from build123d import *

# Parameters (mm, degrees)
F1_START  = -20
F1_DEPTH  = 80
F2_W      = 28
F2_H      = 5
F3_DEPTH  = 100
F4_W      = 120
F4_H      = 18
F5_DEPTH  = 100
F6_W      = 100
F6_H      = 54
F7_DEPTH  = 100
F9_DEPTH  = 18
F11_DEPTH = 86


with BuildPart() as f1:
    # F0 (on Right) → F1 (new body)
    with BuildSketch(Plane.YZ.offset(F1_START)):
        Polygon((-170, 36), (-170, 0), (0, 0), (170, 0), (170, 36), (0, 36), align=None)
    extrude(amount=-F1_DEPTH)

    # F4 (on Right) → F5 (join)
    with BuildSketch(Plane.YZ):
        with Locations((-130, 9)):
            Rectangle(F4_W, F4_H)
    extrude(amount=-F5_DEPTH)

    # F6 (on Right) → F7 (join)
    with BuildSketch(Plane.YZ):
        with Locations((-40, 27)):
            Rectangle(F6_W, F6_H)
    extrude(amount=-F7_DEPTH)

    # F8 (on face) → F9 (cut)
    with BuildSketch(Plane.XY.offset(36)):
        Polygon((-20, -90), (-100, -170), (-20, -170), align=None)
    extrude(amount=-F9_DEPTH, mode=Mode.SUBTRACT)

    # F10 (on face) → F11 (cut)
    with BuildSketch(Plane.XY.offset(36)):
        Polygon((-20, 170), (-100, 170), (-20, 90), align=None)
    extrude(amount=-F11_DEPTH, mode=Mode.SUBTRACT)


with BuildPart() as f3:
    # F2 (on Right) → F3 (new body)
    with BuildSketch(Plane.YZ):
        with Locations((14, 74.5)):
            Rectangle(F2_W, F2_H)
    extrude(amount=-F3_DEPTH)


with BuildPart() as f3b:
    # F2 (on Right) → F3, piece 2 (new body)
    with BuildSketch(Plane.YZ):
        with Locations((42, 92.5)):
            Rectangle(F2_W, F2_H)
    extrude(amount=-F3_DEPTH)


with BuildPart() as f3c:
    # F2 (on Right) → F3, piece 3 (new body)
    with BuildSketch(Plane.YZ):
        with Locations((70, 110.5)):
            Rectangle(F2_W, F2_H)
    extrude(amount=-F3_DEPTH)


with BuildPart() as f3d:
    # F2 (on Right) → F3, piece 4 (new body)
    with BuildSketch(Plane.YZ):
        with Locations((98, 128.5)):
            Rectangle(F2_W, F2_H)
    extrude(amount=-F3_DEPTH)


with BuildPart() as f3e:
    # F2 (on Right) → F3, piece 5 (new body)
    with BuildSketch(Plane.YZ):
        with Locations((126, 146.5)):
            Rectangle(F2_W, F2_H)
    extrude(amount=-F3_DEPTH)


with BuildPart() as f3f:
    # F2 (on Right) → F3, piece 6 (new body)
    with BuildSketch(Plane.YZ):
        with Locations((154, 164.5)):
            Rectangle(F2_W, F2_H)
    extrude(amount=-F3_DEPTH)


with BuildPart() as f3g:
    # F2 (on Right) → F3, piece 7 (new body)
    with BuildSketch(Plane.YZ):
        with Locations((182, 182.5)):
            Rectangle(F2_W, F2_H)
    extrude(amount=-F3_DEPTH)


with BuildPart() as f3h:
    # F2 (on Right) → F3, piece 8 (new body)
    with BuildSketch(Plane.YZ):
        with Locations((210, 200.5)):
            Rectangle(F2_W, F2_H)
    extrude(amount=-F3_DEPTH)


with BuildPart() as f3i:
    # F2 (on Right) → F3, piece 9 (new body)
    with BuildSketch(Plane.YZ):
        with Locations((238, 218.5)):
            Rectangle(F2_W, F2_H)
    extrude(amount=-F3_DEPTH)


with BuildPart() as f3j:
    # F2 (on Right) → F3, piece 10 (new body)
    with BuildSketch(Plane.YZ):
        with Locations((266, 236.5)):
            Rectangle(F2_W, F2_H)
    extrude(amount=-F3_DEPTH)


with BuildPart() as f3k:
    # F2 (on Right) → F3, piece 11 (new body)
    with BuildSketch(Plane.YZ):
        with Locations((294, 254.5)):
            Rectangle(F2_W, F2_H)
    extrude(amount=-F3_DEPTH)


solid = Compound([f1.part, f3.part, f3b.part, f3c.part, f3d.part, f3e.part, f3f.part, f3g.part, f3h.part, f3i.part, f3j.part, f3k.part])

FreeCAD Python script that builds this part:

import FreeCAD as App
import Part
import Sketcher

V = App.Vector
Q = App.Units.Quantity


def add_polygon(sketch, points):
    """Adds a closed chain of lines whose ends are joined by coincident constraints."""
    first, n = sketch.GeometryCount, len(points)
    for a, b in zip(points, points[1:] + points[:1]):
        sketch.addGeometry(Part.LineSegment(App.Vector(*a, 0), App.Vector(*b, 0)), False)
    for i in range(n):
        sketch.addConstraint(Sketcher.Constraint("Coincident", first + i, 2, first + (i + 1) % n, 1))

doc = App.newDocument("Part")
params = doc.addObject("Spreadsheet::Sheet", "Params")
for row, (alias, value) in enumerate([
    ("sketch1_width", "340 mm"),
    ("sketch1_height", "36 mm"),
    ("pad1_length", "80 mm"),
    ("sketch2_width", "120 mm"),
    ("sketch2_height", "18 mm"),
    ("pad2_length", "100 mm"),
    ("sketch3_width", "100 mm"),
    ("sketch3_height", "54 mm"),
    ("pad3_length", "100 mm"),
    ("sketch4_width", "80 mm"),
    ("pocket1_length", "18 mm"),
    ("sketch5_width", "80 mm"),
    ("pocket2_length", "86 mm"),
    ("sketch6_width", "28 mm"),
    ("sketch6_height", "5 mm"),
    ("pad4_length", "100 mm"),
    ("sketch7_width", "28 mm"),
    ("sketch7_height", "5 mm"),
    ("pad5_length", "100 mm"),
    ("sketch8_width", "28 mm"),
    ("sketch8_height", "5 mm"),
    ("pad6_length", "100 mm"),
    ("sketch9_width", "28 mm"),
    ("sketch9_height", "5 mm"),
    ("pad7_length", "100 mm"),
    ("sketch10_width", "28 mm"),
    ("sketch10_height", "5 mm"),
    ("pad8_length", "100 mm"),
    ("sketch11_width", "28 mm"),
    ("sketch11_height", "5 mm"),
    ("pad9_length", "100 mm"),
    ("sketch12_width", "28 mm"),
    ("sketch12_height", "5 mm"),
    ("pad10_length", "100 mm"),
    ("sketch13_width", "28 mm"),
    ("sketch13_height", "5 mm"),
    ("pad11_length", "100 mm"),
    ("sketch14_width", "28 mm"),
    ("sketch14_height", "5 mm"),
    ("pad12_length", "100 mm"),
    ("sketch15_width", "28 mm"),
    ("sketch15_height", "5 mm"),
    ("pad13_length", "100 mm"),
    ("sketch16_width", "28 mm"),
    ("sketch16_height", "5 mm"),
    ("pad14_length", "100 mm"),
], start=1):
    params.set(f"A{row}", alias)
    params.set(f"B{row}", "=" + value)
    params.setAlias(f"B{row}", alias)

body = doc.addObject("PartDesign::Body", "Body")

# Sketch on YZ plane
sketch1 = body.newObject("Sketcher::SketchObject", "Sketch")
sketch1.AttachmentSupport = (doc.getObject("YZ_Plane"), [""])
sketch1.MapMode = "FlatFace"
sketch1.AttachmentOffset = App.Placement(V(0, 0, -20), App.Rotation())
add_polygon(sketch1, [(-170, 36), (-170, 0), (170, 0), (170, 36)])  # lines 0-3
sketch1.addConstraint([
    Sketcher.Constraint("Vertical", 0),
    Sketcher.Constraint("Horizontal", 1),
    Sketcher.Constraint("Vertical", 2),
    Sketcher.Constraint("Horizontal", 3),
    Sketcher.Constraint("Symmetric", 0, 2, 1, 2, -1, 1),
    Sketcher.Constraint("DistanceX", 1, 1, 1, 2, Q("340 mm")),
    Sketcher.Constraint("DistanceY", 0, 2, 0, 1, Q("36 mm")),
])
sketch1.setExpression("Constraints[9]", "Params.sketch1_width")
sketch1.setExpression("Constraints[10]", "Params.sketch1_height")
pad1 = body.newObject("PartDesign::Pad", "Pad")
pad1.Profile = sketch1
pad1.setExpression("Length", "Params.pad1_length")
pad1.Reversed = True

# Sketch on YZ plane
sketch2 = body.newObject("Sketcher::SketchObject", "Sketch001")
sketch2.AttachmentSupport = (doc.getObject("YZ_Plane"), [""])
sketch2.MapMode = "FlatFace"
add_polygon(sketch2, [(-190, 18), (-190, 0), (-70, 0), (-70, 18)])  # lines 0-3
sketch2.addConstraint([
    Sketcher.Constraint("Vertical", 0),
    Sketcher.Constraint("Horizontal", 1),
    Sketcher.Constraint("Vertical", 2),
    Sketcher.Constraint("Horizontal", 3),
    Sketcher.Constraint("PointOnObject", 0, 2, -1),
    Sketcher.Constraint("DistanceX", 1, 1, 1, 2, Q("120 mm")),
    Sketcher.Constraint("DistanceY", 0, 2, 0, 1, Q("18 mm")),
    Sketcher.Constraint("DistanceX", 0, 2, -1, 1, Q("190 mm")),
])
sketch2.setExpression("Constraints[9]", "Params.sketch2_width")
sketch2.setExpression("Constraints[10]", "Params.sketch2_height")
pad2 = body.newObject("PartDesign::Pad", "Pad001")
pad2.Profile = sketch2
pad2.setExpression("Length", "Params.pad2_length")
pad2.Reversed = True

# Sketch on YZ plane
sketch3 = body.newObject("Sketcher::SketchObject", "Sketch002")
sketch3.AttachmentSupport = (doc.getObject("YZ_Plane"), [""])
sketch3.MapMode = "FlatFace"
add_polygon(sketch3, [(-90, 54), (-90, 0), (10, 0), (10, 54)])  # lines 0-3
sketch3.addConstraint([
    Sketcher.Constraint("Vertical", 0),
    Sketcher.Constraint("Horizontal", 1),
    Sketcher.Constraint("Vertical", 2),
    Sketcher.Constraint("Horizontal", 3),
    Sketcher.Constraint("PointOnObject", 0, 2, -1),
    Sketcher.Constraint("DistanceX", 1, 1, 1, 2, Q("100 mm")),
    Sketcher.Constraint("DistanceY", 0, 2, 0, 1, Q("54 mm")),
    Sketcher.Constraint("DistanceX", 0, 2, -1, 1, Q("90 mm")),
])
sketch3.setExpression("Constraints[9]", "Params.sketch3_width")
sketch3.setExpression("Constraints[10]", "Params.sketch3_height")
pad3 = body.newObject("PartDesign::Pad", "Pad002")
pad3.Profile = sketch3
pad3.setExpression("Length", "Params.pad3_length")
pad3.Reversed = True

# Sketch on XY plane
sketch4 = body.newObject("Sketcher::SketchObject", "Sketch003")
sketch4.AttachmentSupport = (doc.getObject("XY_Plane"), [""])
sketch4.MapMode = "FlatFace"
sketch4.AttachmentOffset = App.Placement(V(0, 0, 36), App.Rotation())
add_polygon(sketch4, [(-20, -90), (-100, -170), (-20, -170)])  # lines 0-2
sketch4.addConstraint([
    Sketcher.Constraint("Horizontal", 1),
    Sketcher.Constraint("Vertical", 2),
    Sketcher.Constraint("Equal", 1, 2),
    Sketcher.Constraint("DistanceX", 1, 1, 1, 2, Q("80 mm")),
    Sketcher.Constraint("DistanceX", 0, 2, -1, 1, Q("100 mm")),
    Sketcher.Constraint("DistanceY", 0, 2, -1, 1, Q("170 mm")),
])
sketch4.setExpression("Constraints[6]", "Params.sketch4_width")
pocket1 = body.newObject("PartDesign::Pocket", "Pocket")
pocket1.Profile = sketch4
pocket1.setExpression("Length", "Params.pocket1_length")

# Sketch on XY plane
sketch5 = body.newObject("Sketcher::SketchObject", "Sketch004")
sketch5.AttachmentSupport = (doc.getObject("XY_Plane"), [""])
sketch5.MapMode = "FlatFace"
sketch5.AttachmentOffset = App.Placement(V(0, 0, 36), App.Rotation())
add_polygon(sketch5, [(-20, 170), (-100, 170), (-20, 90)])  # lines 0-2
sketch5.addConstraint([
    Sketcher.Constraint("Horizontal", 0),
    Sketcher.Constraint("Vertical", 2),
    Sketcher.Constraint("Equal", 0, 2),
    Sketcher.Constraint("DistanceX", 0, 2, 0, 1, Q("80 mm")),
    Sketcher.Constraint("DistanceX", 0, 2, -1, 1, Q("100 mm")),
    Sketcher.Constraint("DistanceY", -1, 1, 0, 2, Q("170 mm")),
])
sketch5.setExpression("Constraints[6]", "Params.sketch5_width")
pocket2 = body.newObject("PartDesign::Pocket", "Pocket001")
pocket2.Profile = sketch5
pocket2.setExpression("Length", "Params.pocket2_length")
body2 = doc.addObject("PartDesign::Body", "Body001")

# Sketch on YZ plane
sketch6 = body2.newObject("Sketcher::SketchObject", "Sketch005")
sketch6.AttachmentSupport = (doc.getObject("YZ_Plane001"), [""])
sketch6.MapMode = "FlatFace"
add_polygon(sketch6, [(0, 77), (0, 72), (28, 72), (28, 77)])  # lines 0-3
sketch6.addConstraint([
    Sketcher.Constraint("Vertical", 0),
    Sketcher.Constraint("Horizontal", 1),
    Sketcher.Constraint("Vertical", 2),
    Sketcher.Constraint("Horizontal", 3),
    Sketcher.Constraint("PointOnObject", 0, 2, -2),
    Sketcher.Constraint("DistanceX", 1, 1, 1, 2, Q("28 mm")),
    Sketcher.Constraint("DistanceY", 0, 2, 0, 1, Q("5 mm")),
    Sketcher.Constraint("DistanceY", -1, 1, 0, 2, Q("72 mm")),
])
sketch6.setExpression("Constraints[9]", "Params.sketch6_width")
sketch6.setExpression("Constraints[10]", "Params.sketch6_height")
pad4 = body2.newObject("PartDesign::Pad", "Pad003")
pad4.Profile = sketch6
pad4.setExpression("Length", "Params.pad4_length")
pad4.Reversed = True
body3 = doc.addObject("PartDesign::Body", "Body002")

# Sketch on YZ plane
sketch7 = body3.newObject("Sketcher::SketchObject", "Sketch006")
sketch7.AttachmentSupport = (doc.getObject("YZ_Plane002"), [""])
sketch7.MapMode = "FlatFace"
add_polygon(sketch7, [(28, 95), (28, 90), (56, 90), (56, 95)])  # lines 0-3
sketch7.addConstraint([
    Sketcher.Constraint("Vertical", 0),
    Sketcher.Constraint("Horizontal", 1),
    Sketcher.Constraint("Vertical", 2),
    Sketcher.Constraint("Horizontal", 3),
    Sketcher.Constraint("DistanceX", 1, 1, 1, 2, Q("28 mm")),
    Sketcher.Constraint("DistanceY", 0, 2, 0, 1, Q("5 mm")),
    Sketcher.Constraint("DistanceX", -1, 1, 0, 2, Q("28 mm")),
    Sketcher.Constraint("DistanceY", -1, 1, 0, 2, Q("90 mm")),
])
sketch7.setExpression("Constraints[8]", "Params.sketch7_width")
sketch7.setExpression("Constraints[9]", "Params.sketch7_height")
pad5 = body3.newObject("PartDesign::Pad", "Pad004")
pad5.Profile = sketch7
pad5.setExpression("Length", "Params.pad5_length")
pad5.Reversed = True
body4 = doc.addObject("PartDesign::Body", "Body003")

# Sketch on YZ plane
sketch8 = body4.newObject("Sketcher::SketchObject", "Sketch007")
sketch8.AttachmentSupport = (doc.getObject("YZ_Plane003"), [""])
sketch8.MapMode = "FlatFace"
add_polygon(sketch8, [(56, 113), (56, 108), (84, 108), (84, 113)])  # lines 0-3
sketch8.addConstraint([
    Sketcher.Constraint("Vertical", 0),
    Sketcher.Constraint("Horizontal", 1),
    Sketcher.Constraint("Vertical", 2),
    Sketcher.Constraint("Horizontal", 3),
    Sketcher.Constraint("DistanceX", 1, 1, 1, 2, Q("28 mm")),
    Sketcher.Constraint("DistanceY", 0, 2, 0, 1, Q("5 mm")),
    Sketcher.Constraint("DistanceX", -1, 1, 0, 2, Q("56 mm")),
    Sketcher.Constraint("DistanceY", -1, 1, 0, 2, Q("108 mm")),
])
sketch8.setExpression("Constraints[8]", "Params.sketch8_width")
sketch8.setExpression("Constraints[9]", "Params.sketch8_height")
pad6 = body4.newObject("PartDesign::Pad", "Pad005")
pad6.Profile = sketch8
pad6.setExpression("Length", "Params.pad6_length")
pad6.Reversed = True
body5 = doc.addObject("PartDesign::Body", "Body004")

# Sketch on YZ plane
sketch9 = body5.newObject("Sketcher::SketchObject", "Sketch008")
sketch9.AttachmentSupport = (doc.getObject("YZ_Plane004"), [""])
sketch9.MapMode = "FlatFace"
add_polygon(sketch9, [(84, 131), (84, 126), (112, 126), (112, 131)])  # lines 0-3
sketch9.addConstraint([
    Sketcher.Constraint("Vertical", 0),
    Sketcher.Constraint("Horizontal", 1),
    Sketcher.Constraint("Vertical", 2),
    Sketcher.Constraint("Horizontal", 3),
    Sketcher.Constraint("DistanceX", 1, 1, 1, 2, Q("28 mm")),
    Sketcher.Constraint("DistanceY", 0, 2, 0, 1, Q("5 mm")),
    Sketcher.Constraint("DistanceX", -1, 1, 0, 2, Q("84 mm")),
    Sketcher.Constraint("DistanceY", -1, 1, 0, 2, Q("126 mm")),
])
sketch9.setExpression("Constraints[8]", "Params.sketch9_width")
sketch9.setExpression("Constraints[9]", "Params.sketch9_height")
pad7 = body5.newObject("PartDesign::Pad", "Pad006")
pad7.Profile = sketch9
pad7.setExpression("Length", "Params.pad7_length")
pad7.Reversed = True
body6 = doc.addObject("PartDesign::Body", "Body005")

# Sketch on YZ plane
sketch10 = body6.newObject("Sketcher::SketchObject", "Sketch009")
sketch10.AttachmentSupport = (doc.getObject("YZ_Plane005"), [""])
sketch10.MapMode = "FlatFace"
add_polygon(sketch10, [(112, 149), (112, 144), (140, 144), (140, 149)])  # lines 0-3
sketch10.addConstraint([
    Sketcher.Constraint("Vertical", 0),
    Sketcher.Constraint("Horizontal", 1),
    Sketcher.Constraint("Vertical", 2),
    Sketcher.Constraint("Horizontal", 3),
    Sketcher.Constraint("DistanceX", 1, 1, 1, 2, Q("28 mm")),
    Sketcher.Constraint("DistanceY", 0, 2, 0, 1, Q("5 mm")),
    Sketcher.Constraint("DistanceX", -1, 1, 0, 2, Q("112 mm")),
    Sketcher.Constraint("DistanceY", -1, 1, 0, 2, Q("144 mm")),
])
sketch10.setExpression("Constraints[8]", "Params.sketch10_width")
sketch10.setExpression("Constraints[9]", "Params.sketch10_height")
pad8 = body6.newObject("PartDesign::Pad", "Pad007")
pad8.Profile = sketch10
pad8.setExpression("Length", "Params.pad8_length")
pad8.Reversed = True
body7 = doc.addObject("PartDesign::Body", "Body006")

# Sketch on YZ plane
sketch11 = body7.newObject("Sketcher::SketchObject", "Sketch010")
sketch11.AttachmentSupport = (doc.getObject("YZ_Plane006"), [""])
sketch11.MapMode = "FlatFace"
add_polygon(sketch11, [(140, 167), (140, 162), (168, 162), (168, 167)])  # lines 0-3
sketch11.addConstraint([
    Sketcher.Constraint("Vertical", 0),
    Sketcher.Constraint("Horizontal", 1),
    Sketcher.Constraint("Vertical", 2),
    Sketcher.Constraint("Horizontal", 3),
    Sketcher.Constraint("DistanceX", 1, 1, 1, 2, Q("28 mm")),
    Sketcher.Constraint("DistanceY", 0, 2, 0, 1, Q("5 mm")),
    Sketcher.Constraint("DistanceX", -1, 1, 0, 2, Q("140 mm")),
    Sketcher.Constraint("DistanceY", -1, 1, 0, 2, Q("162 mm")),
])
sketch11.setExpression("Constraints[8]", "Params.sketch11_width")
sketch11.setExpression("Constraints[9]", "Params.sketch11_height")
pad9 = body7.newObject("PartDesign::Pad", "Pad008")
pad9.Profile = sketch11
pad9.setExpression("Length", "Params.pad9_length")
pad9.Reversed = True
body8 = doc.addObject("PartDesign::Body", "Body007")

# Sketch on YZ plane
sketch12 = body8.newObject("Sketcher::SketchObject", "Sketch011")
sketch12.AttachmentSupport = (doc.getObject("YZ_Plane007"), [""])
sketch12.MapMode = "FlatFace"
add_polygon(sketch12, [(168, 185), (168, 180), (196, 180), (196, 185)])  # lines 0-3
sketch12.addConstraint([
    Sketcher.Constraint("Vertical", 0),
    Sketcher.Constraint("Horizontal", 1),
    Sketcher.Constraint("Vertical", 2),
    Sketcher.Constraint("Horizontal", 3),
    Sketcher.Constraint("DistanceX", 1, 1, 1, 2, Q("28 mm")),
    Sketcher.Constraint("DistanceY", 0, 2, 0, 1, Q("5 mm")),
    Sketcher.Constraint("DistanceX", -1, 1, 0, 2, Q("168 mm")),
    Sketcher.Constraint("DistanceY", -1, 1, 0, 2, Q("180 mm")),
])
sketch12.setExpression("Constraints[8]", "Params.sketch12_width")
sketch12.setExpression("Constraints[9]", "Params.sketch12_height")
pad10 = body8.newObject("PartDesign::Pad", "Pad009")
pad10.Profile = sketch12
pad10.setExpression("Length", "Params.pad10_length")
pad10.Reversed = True
body9 = doc.addObject("PartDesign::Body", "Body008")

# Sketch on YZ plane
sketch13 = body9.newObject("Sketcher::SketchObject", "Sketch012")
sketch13.AttachmentSupport = (doc.getObject("YZ_Plane008"), [""])
sketch13.MapMode = "FlatFace"
add_polygon(sketch13, [(196, 203), (196, 198), (224, 198), (224, 203)])  # lines 0-3
sketch13.addConstraint([
    Sketcher.Constraint("Vertical", 0),
    Sketcher.Constraint("Horizontal", 1),
    Sketcher.Constraint("Vertical", 2),
    Sketcher.Constraint("Horizontal", 3),
    Sketcher.Constraint("DistanceX", 1, 1, 1, 2, Q("28 mm")),
    Sketcher.Constraint("DistanceY", 0, 2, 0, 1, Q("5 mm")),
    Sketcher.Constraint("DistanceX", -1, 1, 0, 2, Q("196 mm")),
    Sketcher.Constraint("DistanceY", -1, 1, 0, 2, Q("198 mm")),
])
sketch13.setExpression("Constraints[8]", "Params.sketch13_width")
sketch13.setExpression("Constraints[9]", "Params.sketch13_height")
pad11 = body9.newObject("PartDesign::Pad", "Pad010")
pad11.Profile = sketch13
pad11.setExpression("Length", "Params.pad11_length")
pad11.Reversed = True
body10 = doc.addObject("PartDesign::Body", "Body009")

# Sketch on YZ plane
sketch14 = body10.newObject("Sketcher::SketchObject", "Sketch013")
sketch14.AttachmentSupport = (doc.getObject("YZ_Plane009"), [""])
sketch14.MapMode = "FlatFace"
add_polygon(sketch14, [(224, 221), (224, 216), (252, 216), (252, 221)])  # lines 0-3
sketch14.addConstraint([
    Sketcher.Constraint("Vertical", 0),
    Sketcher.Constraint("Horizontal", 1),
    Sketcher.Constraint("Vertical", 2),
    Sketcher.Constraint("Horizontal", 3),
    Sketcher.Constraint("DistanceX", 1, 1, 1, 2, Q("28 mm")),
    Sketcher.Constraint("DistanceY", 0, 2, 0, 1, Q("5 mm")),
    Sketcher.Constraint("DistanceX", -1, 1, 0, 2, Q("224 mm")),
    Sketcher.Constraint("DistanceY", -1, 1, 0, 2, Q("216 mm")),
])
sketch14.setExpression("Constraints[8]", "Params.sketch14_width")
sketch14.setExpression("Constraints[9]", "Params.sketch14_height")
pad12 = body10.newObject("PartDesign::Pad", "Pad011")
pad12.Profile = sketch14
pad12.setExpression("Length", "Params.pad12_length")
pad12.Reversed = True
body11 = doc.addObject("PartDesign::Body", "Body010")

# Sketch on YZ plane
sketch15 = body11.newObject("Sketcher::SketchObject", "Sketch014")
sketch15.AttachmentSupport = (doc.getObject("YZ_Plane010"), [""])
sketch15.MapMode = "FlatFace"
add_polygon(sketch15, [(252, 239), (252, 234), (280, 234), (280, 239)])  # lines 0-3
sketch15.addConstraint([
    Sketcher.Constraint("Vertical", 0),
    Sketcher.Constraint("Horizontal", 1),
    Sketcher.Constraint("Vertical", 2),
    Sketcher.Constraint("Horizontal", 3),
    Sketcher.Constraint("DistanceX", 1, 1, 1, 2, Q("28 mm")),
    Sketcher.Constraint("DistanceY", 0, 2, 0, 1, Q("5 mm")),
    Sketcher.Constraint("DistanceX", -1, 1, 0, 2, Q("252 mm")),
    Sketcher.Constraint("DistanceY", -1, 1, 0, 2, Q("234 mm")),
])
sketch15.setExpression("Constraints[8]", "Params.sketch15_width")
sketch15.setExpression("Constraints[9]", "Params.sketch15_height")
pad13 = body11.newObject("PartDesign::Pad", "Pad012")
pad13.Profile = sketch15
pad13.setExpression("Length", "Params.pad13_length")
pad13.Reversed = True
body12 = doc.addObject("PartDesign::Body", "Body011")

# Sketch on YZ plane
sketch16 = body12.newObject("Sketcher::SketchObject", "Sketch015")
sketch16.AttachmentSupport = (doc.getObject("YZ_Plane011"), [""])
sketch16.MapMode = "FlatFace"
add_polygon(sketch16, [(280, 257), (280, 252), (308, 252), (308, 257)])  # lines 0-3
sketch16.addConstraint([
    Sketcher.Constraint("Vertical", 0),
    Sketcher.Constraint("Horizontal", 1),
    Sketcher.Constraint("Vertical", 2),
    Sketcher.Constraint("Horizontal", 3),
    Sketcher.Constraint("DistanceX", 1, 1, 1, 2, Q("28 mm")),
    Sketcher.Constraint("DistanceY", 0, 2, 0, 1, Q("5 mm")),
    Sketcher.Constraint("DistanceX", -1, 1, 0, 2, Q("280 mm")),
    Sketcher.Constraint("DistanceY", -1, 1, 0, 2, Q("252 mm")),
])
sketch16.setExpression("Constraints[8]", "Params.sketch16_width")
sketch16.setExpression("Constraints[9]", "Params.sketch16_height")
pad14 = body12.newObject("PartDesign::Pad", "Pad013")
pad14.Profile = sketch16
pad14.setExpression("Length", "Params.pad14_length")
pad14.Reversed = True

doc.recompute()
